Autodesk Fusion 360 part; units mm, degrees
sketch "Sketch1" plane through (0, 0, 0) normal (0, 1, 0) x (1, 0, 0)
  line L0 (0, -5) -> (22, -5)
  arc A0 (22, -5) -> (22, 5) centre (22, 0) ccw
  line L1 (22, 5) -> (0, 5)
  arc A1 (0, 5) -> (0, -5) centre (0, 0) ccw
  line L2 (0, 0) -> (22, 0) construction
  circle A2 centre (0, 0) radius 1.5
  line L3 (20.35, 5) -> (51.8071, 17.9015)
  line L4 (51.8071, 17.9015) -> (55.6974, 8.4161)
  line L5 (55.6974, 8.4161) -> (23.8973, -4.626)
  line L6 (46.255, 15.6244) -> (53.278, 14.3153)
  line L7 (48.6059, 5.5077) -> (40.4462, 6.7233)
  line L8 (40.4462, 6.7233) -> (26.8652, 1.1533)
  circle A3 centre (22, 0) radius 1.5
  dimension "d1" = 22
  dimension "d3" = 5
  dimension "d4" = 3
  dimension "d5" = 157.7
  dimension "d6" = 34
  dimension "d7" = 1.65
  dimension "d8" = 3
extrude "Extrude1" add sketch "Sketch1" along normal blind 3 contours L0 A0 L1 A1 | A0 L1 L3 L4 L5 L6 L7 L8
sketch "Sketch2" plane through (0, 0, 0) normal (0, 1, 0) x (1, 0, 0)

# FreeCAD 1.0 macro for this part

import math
import FreeCAD as App
import Part
import Sketcher
from FreeCAD import Vector
Q = App.Units.Quantity

doc = App.newDocument("Part")
body = doc.addObject("PartDesign::Body", "Body")

# Sketch on XZ plane
sketch1 = body.newObject("Sketcher::SketchObject", "Sketch")
sketch1.AttachmentSupport = (doc.getObject("XZ_Plane"), [""])
sketch1.MapMode = "FlatFace"
sketch1.addGeometry([
    Part.ArcOfCircle(Part.Circle(Vector(0, 0, 0), Vector(0, 0, 1), 5), math.radians(90), math.radians(270)),  # 0
    Part.LineSegment(Vector(0, 5, 0), Vector(22, 5, 0)),  # 1
    Part.ArcOfCircle(Part.Circle(Vector(22, 0, 0), Vector(0, 0, 1), 5), math.radians(-13), math.radians(90)),  # 2
    Part.LineSegment(Vector(26.9, -1.2, 0), Vector(40.4, -6.7, 0)),  # 3
    Part.LineSegment(Vector(40.4, -6.7, 0), Vector(48.6, -5.5, 0)),  # 4
    Part.LineSegment(Vector(48.6, -5.5, 0), Vector(55.7, -8.4, 0)),  # 5
    Part.LineSegment(Vector(55.7, -8.4, 0), Vector(53.3, -14.3, 0)),  # 6
    Part.LineSegment(Vector(53.3, -14.3, 0), Vector(46.3, -15.6, 0)),  # 7
    Part.LineSegment(Vector(46.3, -15.6, 0), Vector(20.4, -5, 0)),  # 8
    Part.LineSegment(Vector(20.4, -5, 0), Vector(0, -5, 0)),  # 9
    Part.Circle(Vector(0, 0, 0), Vector(0, 0, 1), 1.5),  # 10
    Part.Circle(Vector(22, 0, 0), Vector(0, 0, 1), 1.5),  # 11
], False)
sketch1.addConstraint([
    Sketcher.Constraint("Tangent", 0, 1, 1, 1),
    Sketcher.Constraint("Tangent", 1, 2, 2, 2),
    Sketcher.Constraint("Coincident", 2, 1, 3, 1),
    Sketcher.Constraint("Coincident", 3, 2, 4, 1),
    Sketcher.Constraint("Coincident", 4, 2, 5, 1),
    Sketcher.Constraint("Coincident", 5, 2, 6, 1),
    Sketcher.Constraint("Coincident", 6, 2, 7, 1),
    Sketcher.Constraint("Coincident", 7, 2, 8, 1),
    Sketcher.Constraint("Coincident", 8, 2, 9, 1),
    Sketcher.Constraint("Tangent", 9, 2, 0, 2),
    Sketcher.Constraint("Horizontal", 1),
    Sketcher.Constraint("Horizontal", 9),
    Sketcher.Constraint("Coincident", 0, 3, -1, 1),
    Sketcher.Constraint("Coincident", 10, 3, -1, 1),
    Sketcher.Constraint("Coincident", 11, 3, 2, 3),
    Sketcher.Constraint("Equal", 0, 2),
    Sketcher.Constraint("Equal", 10, 11),
    Sketcher.Constraint("Parallel", 3, 5),
    Sketcher.Constraint("Perpendicular", 5, 6),
    Sketcher.Constraint("Perpendicular", 6, 8),
    Sketcher.Constraint("Diameter", 10, 3.0),
    Sketcher.Constraint("Radius", 0, 5.0),
    Sketcher.Constraint("DistanceX", 1, 1, 1, 2, 22.0),
    Sketcher.Constraint("Angle", 8, Q("157.7 deg")),
    Sketcher.Constraint("DistanceX", 8, 2, 2, 3, 1.65),
    Sketcher.Constraint("Angle", 7, Q("-169.4411 deg")),
    Sketcher.Constraint("DistanceY", 3, 2, 2, 1, 5.57),
    Sketcher.Constraint("Distance", 6, 6.376),
    Sketcher.Constraint("Distance", 7, 7.144),
    Sketcher.Constraint("Distance", 8, 27.999),
    Sketcher.Constraint("DistanceX", -1, 1, 4, 2, 48.606),
    Sketcher.Constraint("DistanceY", 6, 2, 3, 2, 7.592),
])
pad1 = body.newObject("PartDesign::Pad", "Pad")
pad1.Profile = sketch1
pad1.Length = 3
pad1.Reversed = True

doc.recompute()
